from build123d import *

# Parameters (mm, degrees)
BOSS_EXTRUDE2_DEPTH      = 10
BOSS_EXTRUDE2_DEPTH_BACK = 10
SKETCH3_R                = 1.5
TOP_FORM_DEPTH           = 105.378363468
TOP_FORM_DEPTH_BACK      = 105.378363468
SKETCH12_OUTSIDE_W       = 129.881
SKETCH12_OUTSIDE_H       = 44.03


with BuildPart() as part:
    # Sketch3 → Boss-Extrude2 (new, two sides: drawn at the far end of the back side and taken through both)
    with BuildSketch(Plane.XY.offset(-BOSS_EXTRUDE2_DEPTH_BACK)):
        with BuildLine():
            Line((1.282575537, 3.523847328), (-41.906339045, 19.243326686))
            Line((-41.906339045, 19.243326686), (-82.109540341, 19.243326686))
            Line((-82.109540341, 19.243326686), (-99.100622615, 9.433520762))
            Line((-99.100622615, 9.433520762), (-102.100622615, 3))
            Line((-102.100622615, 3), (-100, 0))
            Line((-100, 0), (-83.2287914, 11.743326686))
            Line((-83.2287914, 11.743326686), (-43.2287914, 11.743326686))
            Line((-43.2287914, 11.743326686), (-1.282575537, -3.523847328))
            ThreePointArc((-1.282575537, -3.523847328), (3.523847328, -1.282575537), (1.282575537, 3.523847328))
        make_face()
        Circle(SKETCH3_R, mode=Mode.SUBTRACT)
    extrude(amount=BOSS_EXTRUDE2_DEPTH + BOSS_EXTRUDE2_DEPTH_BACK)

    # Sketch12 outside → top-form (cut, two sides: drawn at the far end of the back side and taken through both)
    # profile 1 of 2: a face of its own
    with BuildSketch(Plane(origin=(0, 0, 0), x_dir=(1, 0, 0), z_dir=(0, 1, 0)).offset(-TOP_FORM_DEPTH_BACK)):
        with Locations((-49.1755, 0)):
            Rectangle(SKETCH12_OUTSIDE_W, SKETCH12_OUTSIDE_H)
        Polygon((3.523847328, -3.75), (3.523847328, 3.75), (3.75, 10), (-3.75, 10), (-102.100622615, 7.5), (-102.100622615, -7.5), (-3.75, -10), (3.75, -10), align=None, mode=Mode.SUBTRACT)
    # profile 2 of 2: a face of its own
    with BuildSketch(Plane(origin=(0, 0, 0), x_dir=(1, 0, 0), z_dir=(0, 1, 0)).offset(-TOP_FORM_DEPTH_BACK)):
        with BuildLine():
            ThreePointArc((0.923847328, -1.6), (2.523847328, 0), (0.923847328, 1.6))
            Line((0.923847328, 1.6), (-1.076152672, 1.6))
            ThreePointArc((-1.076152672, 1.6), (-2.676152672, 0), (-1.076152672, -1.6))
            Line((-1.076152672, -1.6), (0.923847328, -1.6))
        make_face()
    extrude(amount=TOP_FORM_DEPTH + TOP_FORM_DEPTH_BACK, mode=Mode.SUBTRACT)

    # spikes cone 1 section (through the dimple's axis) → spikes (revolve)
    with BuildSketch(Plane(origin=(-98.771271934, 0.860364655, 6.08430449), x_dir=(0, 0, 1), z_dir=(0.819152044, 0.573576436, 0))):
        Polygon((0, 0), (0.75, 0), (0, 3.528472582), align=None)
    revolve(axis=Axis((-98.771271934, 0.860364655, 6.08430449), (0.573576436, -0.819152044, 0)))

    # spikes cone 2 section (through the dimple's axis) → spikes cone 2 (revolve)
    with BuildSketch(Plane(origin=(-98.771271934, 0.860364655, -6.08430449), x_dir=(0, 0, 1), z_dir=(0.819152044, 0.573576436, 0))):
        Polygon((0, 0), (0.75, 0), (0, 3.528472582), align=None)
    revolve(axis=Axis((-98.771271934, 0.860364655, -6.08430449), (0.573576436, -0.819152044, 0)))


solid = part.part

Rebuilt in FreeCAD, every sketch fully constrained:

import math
import FreeCAD as App
import Part
import Sketcher
Q = App.Units.Quantity


def add_polygon(sketch, points):
    """Adds a closed chain of lines whose ends are joined by coincident constraints."""
    first, n = sketch.GeometryCount, len(points)
    for a, b in zip(points, points[1:] + points[:1]):
        sketch.addGeometry(Part.LineSegment(App.Vector(*a, 0), App.Vector(*b, 0)), False)
    for i in range(n):
        sketch.addConstraint(Sketcher.Constraint("Coincident", first + i, 2, first + (i + 1) % n, 1))

doc = App.newDocument("Part")
params = doc.addObject("Spreadsheet::Sheet", "Params")
for row, (alias, value) in enumerate([
    ("sketch1_diameter", "3 mm"),
    ("sketch1_width", "40 mm"),
    ("sketch1_radius", "3.75 mm"),
    ("pad1_length", "10 mm"),
    ("pad1_length2", "10 mm"),
    ("sketch2_radius", "1.6 mm"),
    ("sketch2_width", "2 mm"),
    ("sketch2_height", "15 mm"),
    ("sketch2_width2", "7.5 mm"),
    ("sketch2_height2", "44.03 mm"),
    ("sketch3_width", "0.75 mm"),
    ("revolution_angle", "360 deg"),
    ("sketch4_width", "0.75 mm"),
    ("revolution2_angle", "360 deg"),
], start=1):
    params.set(f"A{row}", alias)
    params.set(f"B{row}", "=" + value)
    params.setAlias(f"B{row}", alias)

body = doc.addObject("PartDesign::Body", "Body")

# Sketch on XY plane
sketch1 = body.newObject("Sketcher::SketchObject", "Sketch")
sketch1.AttachmentSupport = (doc.getObject("XY_Plane"), [""])
sketch1.MapMode = "FlatFace"
sketch1.addGeometry([
    Part.LineSegment(App.Vector(1.3, 3.5, 0), App.Vector(-41.9, 19.2, 0)),  # 0
    Part.LineSegment(App.Vector(-41.9, 19.2, 0), App.Vector(-82.1, 19.2, 0)),  # 1
    Part.LineSegment(App.Vector(-82.1, 19.2, 0), App.Vector(-99.1, 9.4, 0)),  # 2
    Part.LineSegment(App.Vector(-99.1, 9.4, 0), App.Vector(-102.1, 3, 0)),  # 3
    Part.LineSegment(App.Vector(-102.1, 3, 0), App.Vector(-100, 0, 0)),  # 4
    Part.LineSegment(App.Vector(-100, 0, 0), App.Vector(-83.2, 11.7, 0)),  # 5
    Part.LineSegment(App.Vector(-83.2, 11.7, 0), App.Vector(-43.2, 11.7, 0)),  # 6
    Part.LineSegment(App.Vector(-43.2, 11.7, 0), App.Vector(-1.3, -3.5, 0)),  # 7
    Part.ArcOfCircle(Part.Circle(App.Vector(0, 0, 0), App.Vector(0, 0, 1), 3.8), math.radians(-110), math.radians(70)),  # 8
    Part.Circle(App.Vector(0, 0, 0), App.Vector(0, 0, 1), 1.5),  # 9
], False)
sketch1.addConstraint([
    Sketcher.Constraint("Coincident", 0, 2, 1, 1),
    Sketcher.Constraint("Coincident", 1, 2, 2, 1),
    Sketcher.Constraint("Coincident", 2, 2, 3, 1),
    Sketcher.Constraint("Coincident", 3, 2, 4, 1),
    Sketcher.Constraint("Coincident", 4, 2, 5, 1),
    Sketcher.Constraint("Coincident", 5, 2, 6, 1),
    Sketcher.Constraint("Coincident", 6, 2, 7, 1),
    Sketcher.Constraint("Tangent", 7, 2, 8, 1),
    Sketcher.Constraint("Tangent", 8, 2, 0, 1),
    Sketcher.Constraint("Horizontal", 1),
    Sketcher.Constraint("Horizontal", 6),
    Sketcher.Constraint("Coincident", 8, 3, -1, 1),
    Sketcher.Constraint("Coincident", 9, 3, -1, 1),
    Sketcher.Constraint("PointOnObject", 4, 2, -1),
    Sketcher.Constraint("Perpendicular", 4, 5),
    Sketcher.Constraint("Parallel", 0, 7),
    Sketcher.Constraint("Diameter", 9, Q("3 mm")),
    Sketcher.Constraint("DistanceX", 6, 1, 6, 2, Q("40 mm")),
    Sketcher.Constraint("Angle", 0, Q("160 deg")),
    Sketcher.Constraint("Angle", 2, Q("-150 deg")),
    Sketcher.Constraint("Angle", 3, Q("-115 deg")),
    Sketcher.Constraint("Angle", 4, Q("-55 deg")),
    Sketcher.Constraint("Radius", 8, Q("3.75 mm")),
    Sketcher.Constraint("DistanceY", -1, 1, 3, 2, Q("3 mm")),
    Sketcher.Constraint("DistanceX", 4, 2, -1, 1, Q("100 mm")),
    Sketcher.Constraint("DistanceX", 3, 2, 2, 2, Q("3 mm")),
    Sketcher.Constraint("DistanceY", 5, 2, 1, 2, Q("7.5 mm")),
])
sketch1.setExpression("Constraints[16]", "Params.sketch1_diameter")
sketch1.setExpression("Constraints[17]", "Params.sketch1_width")
sketch1.setExpression("Constraints[22]", "Params.sketch1_radius")
pad1 = body.newObject("PartDesign::Pad", "Pad")
pad1.Profile = sketch1
pad1.Type = "TwoLengths"
pad1.setExpression("Length", "Params.pad1_length")
pad1.setExpression("Length2", "Params.pad1_length2")

# Sketch on XZ plane
sketch2 = body.newObject("Sketcher::SketchObject", "Sketch001")
sketch2.AttachmentSupport = (doc.getObject("XZ_Plane"), [""])
sketch2.MapMode = "FlatFace"
add_polygon(sketch2, [(-114.1, -22), (-114.1, 22), (15.8, 22), (15.8, -22)])  # lines 0-3
add_polygon(sketch2, [(3.5, -3.8), (3.5, 3.8), (3.8, 10), (-3.8, 10), (-102.1, 7.5), (-102.1, -7.5), (-3.8, -10), (3.8, -10)])  # lines 4-11
sketch2.addGeometry(Part.ArcOfCircle(Part.Circle(App.Vector(0.9, 0, 0), App.Vector(0, 0, 1), 1.6), math.radians(-90), math.radians(90)), False)  # 12
sketch2.addGeometry(Part.LineSegment(App.Vector(0.9, -1.6, 0), App.Vector(-1.1, -1.6, 0)), False)  # 13
sketch2.addGeometry(Part.ArcOfCircle(Part.Circle(App.Vector(-1.1, 0, 0), App.Vector(0, 0, 1), 1.6), math.radians(90), math.radians(270)), False)  # 14
sketch2.addGeometry(Part.LineSegment(App.Vector(-1.1, 1.6, 0), App.Vector(0.9, 1.6, 0)), False)  # 15
sketch2.addConstraint([
    Sketcher.Constraint("Tangent", 12, 1, 13, 1),
    Sketcher.Constraint("Tangent", 13, 2, 14, 2),
    Sketcher.Constraint("Tangent", 14, 1, 15, 1),
    Sketcher.Constraint("Tangent", 15, 2, 12, 2),
    Sketcher.Constraint("Vertical", 0),
    Sketcher.Constraint("Horizontal", 1),
    Sketcher.Constraint("Vertical", 2),
    Sketcher.Constraint("Horizontal", 3),
    Sketcher.Constraint("Vertical", 4),
    Sketcher.Constraint("Horizontal", 6),
    Sketcher.Constraint("Vertical", 8),
    Sketcher.Constraint("Horizontal", 10),
    Sketcher.Constraint("Horizontal", 13),
    Sketcher.Constraint("Horizontal", 15),
    Sketcher.Constraint("Symmetric", 5, 2, 9, 2, -1, 1),
    Sketcher.Constraint("PointOnObject", 12, 3, -1),
    Sketcher.Constraint("Vertical", 6, 2, 9, 2),
    Sketcher.Constraint("Vertical", 5, 2, 10, 2),
    Sketcher.Constraint("Equal", 10, 4),
    Sketcher.Constraint("Equal", 7, 9),
    Sketcher.Constraint("Equal", 5, 11),
    Sketcher.Constraint("Radius", 12, Q("1.6 mm")),
    Sketcher.Constraint("DistanceX", 13, 2, 13, 1, Q("2 mm")),
    Sketcher.Constraint("DistanceY", 8, 2, 8, 1, Q("15 mm")),
    Sketcher.Constraint("DistanceX", 6, 2, 6, 1, Q("7.5 mm")),
    Sketcher.Constraint("DistanceY", -1, 1, 5, 2, Q("10 mm")),
    Sketcher.Constraint("DistanceY", 0, 1, 0, 2, Q("44.03 mm")),
    Sketcher.Constraint("DistanceX", 12, 3, 4, 2, Q("2.6 mm")),
    Sketcher.Constraint("DistanceX", 1, 1, 1, 2, Q("129.881 mm")),
    Sketcher.Constraint("DistanceX", 0, 2, -1, 1, Q("114.116 mm")),
    Sketcher.Constraint("DistanceY", -1, 1, 0, 2, Q("22.015 mm")),
    Sketcher.Constraint("Distance", 5, Q("6.25409 mm")),
    Sketcher.Constraint("Distance", 7, Q("98.382392 mm")),
])
sketch2.setExpression("Constraints[33]", "Params.sketch2_radius")
sketch2.setExpression("Constraints[34]", "Params.sketch2_width")
sketch2.setExpression("Constraints[35]", "Params.sketch2_height")
sketch2.setExpression("Constraints[36]", "Params.sketch2_width2")
sketch2.setExpression("Constraints[38]", "Params.sketch2_height2")
pocket1 = body.newObject("PartDesign::Pocket", "Pocket")
pocket1.Profile = sketch2
pocket1.Type = "ThroughAll"
pocket1.Midplane = True

# Sketch on an angled plane
sketch3 = body.newObject("Sketcher::SketchObject", "Sketch002")
sketch3.Placement = App.Placement(App.Vector(-98.771272, 0.860365, 6.084304), App.Rotation(App.Vector(0, 0, 1), App.Vector(0.573576436, -0.819152044, 0), App.Vector(0.819152044, 0.573576436, 0), "ZXY"))
add_polygon(sketch3, [(0, 0), (0.8, 0), (0, 3.5)])  # lines 0-2
sketch3.addConstraint([
    Sketcher.Constraint("Horizontal", 0),
    Sketcher.Constraint("Vertical", 2),
    Sketcher.Constraint("Coincident", 2, 2, -1, 1),
    Sketcher.Constraint("Angle", 1, Q("102 deg")),
    Sketcher.Constraint("DistanceX", 0, 1, 0, 2, Q("0.75 mm")),
])
sketch3.setExpression("Constraints[7]", "Params.sketch3_width")
revolution = body.newObject("PartDesign::Revolution", "Revolution")
revolution.Profile = sketch3
revolution.ReferenceAxis = (sketch3, ["V_Axis"])
revolution.setExpression("Angle", "Params.revolution_angle")

# Sketch on an angled plane
sketch4 = body.newObject("Sketcher::SketchObject", "Sketch003")
sketch4.Placement = App.Placement(App.Vector(-98.771272, 0.860365, -6.084304), App.Rotation(App.Vector(0, 0, 1), App.Vector(0.573576436, -0.819152044, 0), App.Vector(0.819152044, 0.573576436, 0), "ZXY"))
add_polygon(sketch4, [(0, 0), (0.8, 0), (0, 3.5)])  # lines 0-2
sketch4.addConstraint([
    Sketcher.Constraint("Horizontal", 0),
    Sketcher.Constraint("Vertical", 2),
    Sketcher.Constraint("Coincident", 2, 2, -1, 1),
    Sketcher.Constraint("Angle", 1, Q("102 deg")),
    Sketcher.Constraint("DistanceX", 0, 1, 0, 2, Q("0.75 mm")),
])
sketch4.setExpression("Constraints[7]", "Params.sketch4_width")
revolution2 = body.newObject("PartDesign::Revolution", "Revolution001")
revolution2.Profile = sketch4
revolution2.ReferenceAxis = (sketch4, ["V_Axis"])
revolution2.setExpression("Angle", "Params.revolution2_angle")

doc.recompute()
